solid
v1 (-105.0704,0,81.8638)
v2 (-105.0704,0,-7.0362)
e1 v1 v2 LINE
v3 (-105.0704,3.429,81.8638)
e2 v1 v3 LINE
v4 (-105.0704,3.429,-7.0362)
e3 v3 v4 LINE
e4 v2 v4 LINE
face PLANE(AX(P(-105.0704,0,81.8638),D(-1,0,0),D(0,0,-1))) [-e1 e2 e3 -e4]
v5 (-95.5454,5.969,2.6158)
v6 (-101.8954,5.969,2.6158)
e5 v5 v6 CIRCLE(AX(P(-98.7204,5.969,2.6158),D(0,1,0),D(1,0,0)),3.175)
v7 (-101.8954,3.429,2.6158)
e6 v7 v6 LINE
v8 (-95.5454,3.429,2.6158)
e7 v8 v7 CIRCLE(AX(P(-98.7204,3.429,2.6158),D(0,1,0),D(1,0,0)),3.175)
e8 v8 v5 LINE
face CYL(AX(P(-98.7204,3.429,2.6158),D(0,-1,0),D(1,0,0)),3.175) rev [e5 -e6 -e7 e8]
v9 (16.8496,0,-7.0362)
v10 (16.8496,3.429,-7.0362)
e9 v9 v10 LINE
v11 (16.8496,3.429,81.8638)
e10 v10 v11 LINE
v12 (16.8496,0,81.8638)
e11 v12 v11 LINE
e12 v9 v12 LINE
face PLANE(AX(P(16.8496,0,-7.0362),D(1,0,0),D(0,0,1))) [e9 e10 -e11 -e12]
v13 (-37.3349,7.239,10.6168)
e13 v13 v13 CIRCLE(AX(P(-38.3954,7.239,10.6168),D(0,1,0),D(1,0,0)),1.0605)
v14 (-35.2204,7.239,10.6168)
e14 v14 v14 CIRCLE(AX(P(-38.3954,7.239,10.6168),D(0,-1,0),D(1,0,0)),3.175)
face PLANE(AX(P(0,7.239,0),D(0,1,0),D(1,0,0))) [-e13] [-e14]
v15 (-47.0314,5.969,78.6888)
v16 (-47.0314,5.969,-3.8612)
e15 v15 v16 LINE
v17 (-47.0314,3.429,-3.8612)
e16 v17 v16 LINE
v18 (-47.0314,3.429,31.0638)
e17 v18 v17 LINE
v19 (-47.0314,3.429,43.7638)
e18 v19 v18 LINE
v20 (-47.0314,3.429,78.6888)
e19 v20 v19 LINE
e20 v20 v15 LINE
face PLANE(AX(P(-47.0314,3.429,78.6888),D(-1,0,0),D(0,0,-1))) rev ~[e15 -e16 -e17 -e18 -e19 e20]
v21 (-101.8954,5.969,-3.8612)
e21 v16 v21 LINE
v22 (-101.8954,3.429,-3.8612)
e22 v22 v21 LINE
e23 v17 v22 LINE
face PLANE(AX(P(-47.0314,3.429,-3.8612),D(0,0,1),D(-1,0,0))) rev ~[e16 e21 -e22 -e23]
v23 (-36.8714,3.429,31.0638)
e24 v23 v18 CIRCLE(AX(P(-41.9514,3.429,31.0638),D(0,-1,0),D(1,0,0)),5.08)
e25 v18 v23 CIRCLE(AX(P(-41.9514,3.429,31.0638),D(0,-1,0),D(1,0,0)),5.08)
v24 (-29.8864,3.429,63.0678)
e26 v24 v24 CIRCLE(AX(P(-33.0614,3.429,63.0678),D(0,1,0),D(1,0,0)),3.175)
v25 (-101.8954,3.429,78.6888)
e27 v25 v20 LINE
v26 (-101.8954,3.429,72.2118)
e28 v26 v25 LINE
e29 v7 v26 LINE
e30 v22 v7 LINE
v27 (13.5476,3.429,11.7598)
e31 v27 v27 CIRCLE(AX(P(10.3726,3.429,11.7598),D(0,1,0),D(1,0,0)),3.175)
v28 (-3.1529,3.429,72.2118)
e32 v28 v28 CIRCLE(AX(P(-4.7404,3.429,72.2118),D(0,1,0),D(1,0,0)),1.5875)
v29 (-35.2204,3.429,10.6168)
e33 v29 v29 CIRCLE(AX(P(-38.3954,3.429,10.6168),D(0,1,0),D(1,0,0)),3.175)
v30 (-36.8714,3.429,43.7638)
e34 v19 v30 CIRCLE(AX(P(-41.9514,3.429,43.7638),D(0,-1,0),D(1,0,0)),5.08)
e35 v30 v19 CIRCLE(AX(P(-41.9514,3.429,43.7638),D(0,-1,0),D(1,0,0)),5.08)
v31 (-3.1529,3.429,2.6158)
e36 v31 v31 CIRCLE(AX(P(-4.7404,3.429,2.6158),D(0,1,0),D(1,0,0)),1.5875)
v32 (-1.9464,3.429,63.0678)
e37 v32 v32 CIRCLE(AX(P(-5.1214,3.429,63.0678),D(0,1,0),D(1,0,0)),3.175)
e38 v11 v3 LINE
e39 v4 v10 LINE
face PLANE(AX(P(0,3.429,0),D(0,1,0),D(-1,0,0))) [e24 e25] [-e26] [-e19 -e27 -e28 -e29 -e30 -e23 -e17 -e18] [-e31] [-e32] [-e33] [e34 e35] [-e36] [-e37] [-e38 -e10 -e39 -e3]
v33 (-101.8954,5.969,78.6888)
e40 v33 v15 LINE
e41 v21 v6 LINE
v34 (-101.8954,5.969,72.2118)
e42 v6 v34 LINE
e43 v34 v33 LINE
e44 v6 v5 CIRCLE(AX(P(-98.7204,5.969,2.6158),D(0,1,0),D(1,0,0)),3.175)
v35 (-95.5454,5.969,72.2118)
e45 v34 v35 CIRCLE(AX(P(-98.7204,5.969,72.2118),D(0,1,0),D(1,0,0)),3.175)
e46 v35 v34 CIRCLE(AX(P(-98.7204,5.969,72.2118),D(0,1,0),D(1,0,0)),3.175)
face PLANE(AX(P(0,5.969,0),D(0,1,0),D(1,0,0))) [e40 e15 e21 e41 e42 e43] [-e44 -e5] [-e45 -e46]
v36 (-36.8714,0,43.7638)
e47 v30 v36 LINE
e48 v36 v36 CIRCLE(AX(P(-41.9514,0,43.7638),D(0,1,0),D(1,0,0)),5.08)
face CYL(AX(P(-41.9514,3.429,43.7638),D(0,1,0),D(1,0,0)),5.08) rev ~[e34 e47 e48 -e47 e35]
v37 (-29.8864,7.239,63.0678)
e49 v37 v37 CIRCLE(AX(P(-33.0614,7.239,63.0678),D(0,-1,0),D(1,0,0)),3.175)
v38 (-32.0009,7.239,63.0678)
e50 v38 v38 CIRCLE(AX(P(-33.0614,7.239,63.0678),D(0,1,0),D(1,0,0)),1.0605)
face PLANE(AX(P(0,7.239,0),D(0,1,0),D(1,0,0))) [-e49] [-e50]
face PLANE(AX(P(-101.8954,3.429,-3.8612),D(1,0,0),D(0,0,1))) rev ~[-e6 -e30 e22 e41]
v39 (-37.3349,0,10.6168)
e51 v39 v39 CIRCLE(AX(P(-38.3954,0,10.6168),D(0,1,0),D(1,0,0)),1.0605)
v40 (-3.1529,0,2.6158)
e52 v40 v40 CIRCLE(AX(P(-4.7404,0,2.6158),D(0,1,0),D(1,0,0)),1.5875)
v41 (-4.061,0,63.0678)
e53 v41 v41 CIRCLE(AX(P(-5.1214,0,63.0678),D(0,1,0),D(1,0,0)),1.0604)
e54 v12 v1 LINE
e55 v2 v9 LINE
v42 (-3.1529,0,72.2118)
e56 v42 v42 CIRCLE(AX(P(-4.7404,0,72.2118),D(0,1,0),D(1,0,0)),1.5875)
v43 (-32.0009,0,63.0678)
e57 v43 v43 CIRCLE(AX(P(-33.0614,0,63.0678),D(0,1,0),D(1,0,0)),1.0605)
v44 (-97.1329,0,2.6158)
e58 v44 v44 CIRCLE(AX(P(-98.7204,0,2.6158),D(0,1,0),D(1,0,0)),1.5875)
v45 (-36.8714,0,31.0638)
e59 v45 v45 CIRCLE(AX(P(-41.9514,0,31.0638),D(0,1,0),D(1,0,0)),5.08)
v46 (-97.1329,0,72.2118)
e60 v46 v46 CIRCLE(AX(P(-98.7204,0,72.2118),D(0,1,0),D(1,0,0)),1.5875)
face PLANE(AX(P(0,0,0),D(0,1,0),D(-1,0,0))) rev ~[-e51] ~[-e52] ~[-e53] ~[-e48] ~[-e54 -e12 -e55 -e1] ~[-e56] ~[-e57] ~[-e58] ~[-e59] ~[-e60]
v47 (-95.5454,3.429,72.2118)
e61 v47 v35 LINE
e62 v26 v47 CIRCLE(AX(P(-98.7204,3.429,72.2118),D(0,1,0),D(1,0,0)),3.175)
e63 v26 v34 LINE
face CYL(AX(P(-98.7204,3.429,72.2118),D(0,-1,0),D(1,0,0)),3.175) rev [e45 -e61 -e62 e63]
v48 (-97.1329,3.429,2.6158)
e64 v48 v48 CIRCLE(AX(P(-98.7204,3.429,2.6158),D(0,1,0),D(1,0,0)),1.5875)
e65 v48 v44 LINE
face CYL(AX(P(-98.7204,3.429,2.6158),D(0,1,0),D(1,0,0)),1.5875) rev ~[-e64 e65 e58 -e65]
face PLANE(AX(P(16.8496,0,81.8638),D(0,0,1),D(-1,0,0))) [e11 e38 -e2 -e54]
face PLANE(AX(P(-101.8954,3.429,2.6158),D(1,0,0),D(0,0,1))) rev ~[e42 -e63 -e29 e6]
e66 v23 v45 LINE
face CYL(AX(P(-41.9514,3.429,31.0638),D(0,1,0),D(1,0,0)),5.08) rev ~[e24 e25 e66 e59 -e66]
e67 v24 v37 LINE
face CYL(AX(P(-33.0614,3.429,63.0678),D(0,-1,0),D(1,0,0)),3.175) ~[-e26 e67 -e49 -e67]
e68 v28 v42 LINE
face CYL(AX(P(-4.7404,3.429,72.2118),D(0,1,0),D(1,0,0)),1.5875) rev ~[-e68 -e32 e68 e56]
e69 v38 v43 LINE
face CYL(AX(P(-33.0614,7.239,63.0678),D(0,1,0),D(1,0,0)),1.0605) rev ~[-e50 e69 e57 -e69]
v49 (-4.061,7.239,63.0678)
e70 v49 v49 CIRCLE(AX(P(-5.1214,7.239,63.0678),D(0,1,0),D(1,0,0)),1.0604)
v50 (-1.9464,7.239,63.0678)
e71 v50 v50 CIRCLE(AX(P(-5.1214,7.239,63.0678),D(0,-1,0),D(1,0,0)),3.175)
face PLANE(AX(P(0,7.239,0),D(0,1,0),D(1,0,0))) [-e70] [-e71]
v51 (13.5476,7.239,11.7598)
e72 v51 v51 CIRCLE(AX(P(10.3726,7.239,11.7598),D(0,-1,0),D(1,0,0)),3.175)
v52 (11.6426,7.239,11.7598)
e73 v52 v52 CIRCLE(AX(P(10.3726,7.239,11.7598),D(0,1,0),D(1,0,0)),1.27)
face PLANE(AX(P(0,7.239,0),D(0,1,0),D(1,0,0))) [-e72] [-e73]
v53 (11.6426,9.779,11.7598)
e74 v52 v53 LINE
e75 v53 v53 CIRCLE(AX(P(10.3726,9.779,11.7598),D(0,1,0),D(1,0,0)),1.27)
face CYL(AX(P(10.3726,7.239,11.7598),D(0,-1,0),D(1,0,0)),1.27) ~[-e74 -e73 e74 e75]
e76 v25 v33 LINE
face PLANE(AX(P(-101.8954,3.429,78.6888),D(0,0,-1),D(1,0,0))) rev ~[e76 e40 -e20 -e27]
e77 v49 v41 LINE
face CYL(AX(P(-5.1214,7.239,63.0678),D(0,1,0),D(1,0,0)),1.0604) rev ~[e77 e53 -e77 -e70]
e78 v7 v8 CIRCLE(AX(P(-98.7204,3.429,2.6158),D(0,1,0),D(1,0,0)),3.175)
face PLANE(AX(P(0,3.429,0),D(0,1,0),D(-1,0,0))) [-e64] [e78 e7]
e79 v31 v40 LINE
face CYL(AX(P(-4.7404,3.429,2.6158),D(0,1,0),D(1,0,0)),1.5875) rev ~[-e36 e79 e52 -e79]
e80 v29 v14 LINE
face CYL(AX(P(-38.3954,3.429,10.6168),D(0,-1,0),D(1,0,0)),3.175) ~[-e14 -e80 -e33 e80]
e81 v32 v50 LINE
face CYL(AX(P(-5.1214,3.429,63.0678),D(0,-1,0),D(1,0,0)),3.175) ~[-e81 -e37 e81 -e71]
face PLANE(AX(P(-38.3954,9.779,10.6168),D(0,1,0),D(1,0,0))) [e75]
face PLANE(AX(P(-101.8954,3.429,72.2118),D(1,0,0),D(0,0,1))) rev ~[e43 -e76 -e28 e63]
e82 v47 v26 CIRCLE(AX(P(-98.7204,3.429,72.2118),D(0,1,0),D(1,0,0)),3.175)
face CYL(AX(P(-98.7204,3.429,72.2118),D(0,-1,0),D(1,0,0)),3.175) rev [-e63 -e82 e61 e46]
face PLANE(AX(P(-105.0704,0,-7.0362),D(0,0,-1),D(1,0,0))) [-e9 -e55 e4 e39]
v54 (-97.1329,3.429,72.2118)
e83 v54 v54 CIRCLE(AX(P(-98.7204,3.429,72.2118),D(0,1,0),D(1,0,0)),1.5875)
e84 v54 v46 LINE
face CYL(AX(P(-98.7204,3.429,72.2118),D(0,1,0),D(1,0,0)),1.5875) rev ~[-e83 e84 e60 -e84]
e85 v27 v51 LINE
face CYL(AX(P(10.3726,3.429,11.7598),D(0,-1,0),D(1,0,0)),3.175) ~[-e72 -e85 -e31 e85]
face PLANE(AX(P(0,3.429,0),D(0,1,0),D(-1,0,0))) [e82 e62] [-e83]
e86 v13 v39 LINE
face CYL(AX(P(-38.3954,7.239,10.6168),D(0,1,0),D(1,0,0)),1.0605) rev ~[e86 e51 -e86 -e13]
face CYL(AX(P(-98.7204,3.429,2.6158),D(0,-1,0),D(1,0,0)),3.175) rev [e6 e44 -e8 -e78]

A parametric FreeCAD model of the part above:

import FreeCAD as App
import Part
import Sketcher
from FreeCAD import Vector
Q = App.Units.Quantity

doc = App.newDocument("Part")
body = doc.addObject("PartDesign::Body", "Body")

sketch1 = body.newObject("Sketcher::SketchObject", "Sketch")
sketch1.AttachmentSupport = (doc.getObject("XZ_Plane"), [""])
sketch1.MapMode = "FlatFace"
sketch1.addGeometry([
    Part.LineSegment(Vector(-105, 82, 0), Vector(17, 82, 0)),
    Part.LineSegment(Vector(17, 82, 0), Vector(17, -7, 0)),
    Part.LineSegment(Vector(17, -7, 0), Vector(-105, -7, 0)),
    Part.LineSegment(Vector(-105, -7, 0), Vector(-105, 82, 0)),
], False)
sketch1.addConstraint([
    Sketcher.Constraint("Coincident", 0, 2, 1, 1),
    Sketcher.Constraint("Coincident", 1, 2, 2, 1),
    Sketcher.Constraint("Coincident", 2, 2, 3, 1),
    Sketcher.Constraint("Coincident", 3, 2, 0, 1),
    Sketcher.Constraint("Horizontal", 0),
    Sketcher.Constraint("Vertical", 1),
    Sketcher.Constraint("Horizontal", 2),
    Sketcher.Constraint("Vertical", 3),
    Sketcher.Constraint("DistanceX", 0, 1, 0, 2, Q("4.8 in")),
    Sketcher.Constraint("DistanceY", 1, 2, 1, 1, Q("3.5 in")),
    Sketcher.Constraint("DistanceX", -1, 1, 0, 2, 16.8496),
    Sketcher.Constraint("DistanceY", -1, 1, 0, 2, 81.8638),
])
pad1 = body.newObject("PartDesign::Pad", "Pad")
pad1.Profile = sketch1
pad1.Length = Q("0.135 in")
pad1.Reversed = True

sketch2 = body.newObject("Sketcher::SketchObject", "Sketch001")
sketch2.AttachmentSupport = (doc.getObject("XZ_Plane"), [""])
sketch2.MapMode = "FlatFace"
sketch2.AttachmentOffset = App.Placement(Vector(0, 0, -0.135 * 25.4), App.Rotation())
sketch2.addGeometry([
    Part.Circle(Vector(-98.7, 2.6, 0), Vector(0, 0, 1), 1.6),
    Part.Circle(Vector(-98.7, 72.2, 0), Vector(0, 0, 1), 1.6),
    Part.Circle(Vector(-4.7, 2.6, 0), Vector(0, 0, 1), 1.6),
    Part.Circle(Vector(-4.7, 72.2, 0), Vector(0, 0, 1), 1.6),
], False)
sketch2.addConstraint([
    Sketcher.Constraint("Equal", 0, 1),
    Sketcher.Constraint("Equal", 1, 2),
    Sketcher.Constraint("Equal", 2, 3),
    Sketcher.Constraint("Horizontal", 0, 3, 2, 3),
    Sketcher.Constraint("Horizontal", 1, 3, 3, 3),
    Sketcher.Constraint("Vertical", 0, 3, 1, 3),
    Sketcher.Constraint("Vertical", 2, 3, 3, 3),
    Sketcher.Constraint("Diameter", 0, Q("0.125 in")),
    Sketcher.Constraint("DistanceX", 0, 3, 2, 3, Q("3.7 in")),
    Sketcher.Constraint("DistanceY", 0, 3, 1, 3, Q("2.74 in")),
    Sketcher.Constraint("DistanceX", 0, 3, -1, 1, 98.7204),
    Sketcher.Constraint("DistanceY", -1, 1, 0, 3, 2.6158),
])
pocket1 = body.newObject("PartDesign::Pocket", "Pocket")
pocket1.Profile = sketch2
pocket1.Type = "ThroughAll"
pocket1.Reversed = True

sketch3 = body.newObject("Sketcher::SketchObject", "Sketch002")
sketch3.AttachmentSupport = (doc.getObject("XZ_Plane"), [""])
sketch3.MapMode = "FlatFace"
sketch3.AttachmentOffset = App.Placement(Vector(0, 0, -0.135 * 25.4), App.Rotation())
sketch3.addGeometry([
    Part.LineSegment(Vector(-101.9, 72.2, 0), Vector(-101.9, 78.7, 0)),
    Part.LineSegment(Vector(-101.9, 78.7, 0), Vector(-47, 78.7, 0)),
    Part.LineSegment(Vector(-47, 78.7, 0), Vector(-47, -3.9, 0)),
    Part.LineSegment(Vector(-47, -3.9, 0), Vector(-101.9, -3.9, 0)),
    Part.LineSegment(Vector(-101.9, -3.9, 0), Vector(-101.9, 2.6, 0)),
    Part.LineSegment(Vector(-101.9, 2.6, 0), Vector(-101.9, 72.2, 0)),
    Part.Circle(Vector(-98.7, 72.2, 0), Vector(0, 0, 1), 3.2),
    Part.Circle(Vector(-98.7, 2.6, 0), Vector(0, 0, 1), 3.2),
], False)
sketch3.addConstraint([
    Sketcher.Constraint("Coincident", 0, 2, 1, 1),
    Sketcher.Constraint("Coincident", 1, 2, 2, 1),
    Sketcher.Constraint("Coincident", 2, 2, 3, 1),
    Sketcher.Constraint("Coincident", 3, 2, 4, 1),
    Sketcher.Constraint("Coincident", 4, 2, 5, 1),
    Sketcher.Constraint("Coincident", 5, 2, 0, 1),
    Sketcher.Constraint("Vertical", 0),
    Sketcher.Constraint("Horizontal", 1),
    Sketcher.Constraint("Vertical", 2),
    Sketcher.Constraint("Horizontal", 3),
    Sketcher.Constraint("Vertical", 4),
    Sketcher.Constraint("Vertical", 5),
    Sketcher.Constraint("Equal", 6, 7),
    Sketcher.Constraint("Horizontal", 7, 3, 4, 2),
    Sketcher.Constraint("Horizontal", 6, 3, 5, 2),
    Sketcher.Constraint("Vertical", 6, 3, 7, 3),
    Sketcher.Constraint("Equal", 0, 4),
    Sketcher.Constraint("Diameter", 6, Q("0.25 in")),
    Sketcher.Constraint("DistanceX", 1, 1, 1, 2, Q("2.16 in")),
    Sketcher.Constraint("DistanceY", 2, 2, 2, 1, Q("3.25 in")),
    Sketcher.Constraint("DistanceX", 0, 2, 6, 3, Q("0.125 in")),
    Sketcher.Constraint("DistanceY", 5, 1, 5, 2, Q("2.74 in")),
    Sketcher.Constraint("DistanceX", 6, 3, -1, 1, 98.7204),
    Sketcher.Constraint("DistanceY", -1, 1, 6, 3, 72.2118),
])
pad2 = body.newObject("PartDesign::Pad", "Pad001")
pad2.Profile = sketch3
pad2.Length = Q("0.1 in")
pad2.Reversed = True

sketch4 = body.newObject("Sketcher::SketchObject", "Sketch003")
sketch4.AttachmentSupport = (doc.getObject("XZ_Plane"), [""])
sketch4.MapMode = "FlatFace"
sketch4.AttachmentOffset = App.Placement(Vector(0, 0, -0.135 * 25.4), App.Rotation())
sketch4.addGeometry([
    Part.Circle(Vector(-42, 44, 0), Vector(0, 0, 1), 5),
    Part.Circle(Vector(-42, 31, 0), Vector(0, 0, 1), 5),
], False)
sketch4.addConstraint([
    Sketcher.Constraint("Equal", 0, 1),
    Sketcher.Constraint("Vertical", 0, 3, 1, 3),
    Sketcher.Constraint("Diameter", 0, Q("0.4 in")),
    Sketcher.Constraint("DistanceY", 1, 3, 0, 3, Q("0.5 in")),
    Sketcher.Constraint("DistanceX", 0, 3, -1, 1, 41.9514),
    Sketcher.Constraint("DistanceY", -1, 1, 0, 3, 43.7638),
])
pocket2 = body.newObject("PartDesign::Pocket", "Pocket001")
pocket2.Profile = sketch4
pocket2.Type = "ThroughAll"
pocket2.Reversed = True

sketch5 = body.newObject("Sketcher::SketchObject", "Sketch004")
sketch5.AttachmentSupport = (doc.getObject("XZ_Plane"), [""])
sketch5.MapMode = "FlatFace"
sketch5.AttachmentOffset = App.Placement(Vector(0, 0, -0.135 * 25.4), App.Rotation())
sketch5.addGeometry([
    Part.Circle(Vector(-38.4, 10.6, 0), Vector(0, 0, 1), 3.2),
    Part.Circle(Vector(-33.1, 63.1, 0), Vector(0, 0, 1), 3.2),
    Part.Circle(Vector(-5.1, 63.1, 0), Vector(0, 0, 1), 3.2),
    Part.Circle(Vector(10.4, 11.8, 0), Vector(0, 0, 1), 3.2),
], False)
sketch5.addConstraint([
    Sketcher.Constraint("Equal", 0, 1),
    Sketcher.Constraint("Equal", 1, 2),
    Sketcher.Constraint("Equal", 2, 3),
    Sketcher.Constraint("Horizontal", 1, 3, 2, 3),
    Sketcher.Constraint("Diameter", 0, Q("0.25 in")),
    Sketcher.Constraint("DistanceX", 1, 3, 2, 3, Q("1.1 in")),
    Sketcher.Constraint("DistanceX", 0, 3, 1, 3, Q("0.21 in")),
    Sketcher.Constraint("DistanceX", 0, 3, 3, 3, Q("1.92 in")),
    Sketcher.Constraint("DistanceY", 3, 3, 2, 3, Q("2.02 in")),
    Sketcher.Constraint("DistanceY", 0, 3, 1, 3, Q("2.065 in")),
    Sketcher.Constraint("DistanceX", 0, 3, -1, 1, 38.3954),
    Sketcher.Constraint("DistanceY", -1, 1, 0, 3, 10.6168),
])
pad3 = body.newObject("PartDesign::Pad", "Pad002")
pad3.Profile = sketch5
pad3.Length = Q("0.15 in")
pad3.Reversed = True

sketch6 = body.newObject("Sketcher::SketchObject", "Sketch005")
sketch6.AttachmentSupport = (doc.getObject("XZ_Plane"), [""])
sketch6.MapMode = "FlatFace"
sketch6.AttachmentOffset = App.Placement(Vector(0, 0, -0.285 * 25.4), App.Rotation())
sketch6.addGeometry(Part.Circle(Vector(10.4, 11.8, 0), Vector(0, 0, 1), 1.3), False)
sketch6.addConstraint([
    Sketcher.Constraint("Diameter", 0, Q("0.1 in")),
    Sketcher.Constraint("DistanceX", -1, 1, 0, 3, 10.3726),
    Sketcher.Constraint("DistanceY", -1, 1, 0, 3, 11.7598),
])
pad4 = body.newObject("PartDesign::Pad", "Pad003")
pad4.Profile = sketch6
pad4.Length = Q("0.1 in")
pad4.Reversed = True

sketch7 = body.newObject("Sketcher::SketchObject", "Sketch006")
sketch7.AttachmentSupport = (doc.getObject("XZ_Plane"), [""])
sketch7.MapMode = "FlatFace"
sketch7.AttachmentOffset = App.Placement(Vector(0, 0, -0.285 * 25.4), App.Rotation())
sketch7.addGeometry([
    Part.Circle(Vector(-38.4, 10.6, 0), Vector(0, 0, 1), 1.1),
    Part.Circle(Vector(-33.1, 63.1, 0), Vector(0, 0, 1), 1.1),
    Part.Circle(Vector(-5.1, 63.1, 0), Vector(0, 0, 1), 1.1),
], False)
sketch7.addConstraint([
    Sketcher.Constraint("Equal", 0, 1),
    Sketcher.Constraint("Equal", 1, 2),
    Sketcher.Constraint("Horizontal", 1, 3, 2, 3),
    Sketcher.Constraint("Diameter", 0, Q("0.0835 in")),
    Sketcher.Constraint("DistanceX", 1, 3, 2, 3, Q("1.1 in")),
    Sketcher.Constraint("DistanceX", 0, 3, 1, 3, Q("0.21 in")),
    Sketcher.Constraint("DistanceY", 0, 3, 1, 3, Q("2.065 in")),
    Sketcher.Constraint("DistanceX", 0, 3, -1, 1, 38.3954),
    Sketcher.Constraint("DistanceY", -1, 1, 0, 3, 10.6168),
])
pocket3 = body.newObject("PartDesign::Pocket", "Pocket002")
pocket3.Profile = sketch7
pocket3.Type = "ThroughAll"
pocket3.Reversed = True

doc.recompute()
